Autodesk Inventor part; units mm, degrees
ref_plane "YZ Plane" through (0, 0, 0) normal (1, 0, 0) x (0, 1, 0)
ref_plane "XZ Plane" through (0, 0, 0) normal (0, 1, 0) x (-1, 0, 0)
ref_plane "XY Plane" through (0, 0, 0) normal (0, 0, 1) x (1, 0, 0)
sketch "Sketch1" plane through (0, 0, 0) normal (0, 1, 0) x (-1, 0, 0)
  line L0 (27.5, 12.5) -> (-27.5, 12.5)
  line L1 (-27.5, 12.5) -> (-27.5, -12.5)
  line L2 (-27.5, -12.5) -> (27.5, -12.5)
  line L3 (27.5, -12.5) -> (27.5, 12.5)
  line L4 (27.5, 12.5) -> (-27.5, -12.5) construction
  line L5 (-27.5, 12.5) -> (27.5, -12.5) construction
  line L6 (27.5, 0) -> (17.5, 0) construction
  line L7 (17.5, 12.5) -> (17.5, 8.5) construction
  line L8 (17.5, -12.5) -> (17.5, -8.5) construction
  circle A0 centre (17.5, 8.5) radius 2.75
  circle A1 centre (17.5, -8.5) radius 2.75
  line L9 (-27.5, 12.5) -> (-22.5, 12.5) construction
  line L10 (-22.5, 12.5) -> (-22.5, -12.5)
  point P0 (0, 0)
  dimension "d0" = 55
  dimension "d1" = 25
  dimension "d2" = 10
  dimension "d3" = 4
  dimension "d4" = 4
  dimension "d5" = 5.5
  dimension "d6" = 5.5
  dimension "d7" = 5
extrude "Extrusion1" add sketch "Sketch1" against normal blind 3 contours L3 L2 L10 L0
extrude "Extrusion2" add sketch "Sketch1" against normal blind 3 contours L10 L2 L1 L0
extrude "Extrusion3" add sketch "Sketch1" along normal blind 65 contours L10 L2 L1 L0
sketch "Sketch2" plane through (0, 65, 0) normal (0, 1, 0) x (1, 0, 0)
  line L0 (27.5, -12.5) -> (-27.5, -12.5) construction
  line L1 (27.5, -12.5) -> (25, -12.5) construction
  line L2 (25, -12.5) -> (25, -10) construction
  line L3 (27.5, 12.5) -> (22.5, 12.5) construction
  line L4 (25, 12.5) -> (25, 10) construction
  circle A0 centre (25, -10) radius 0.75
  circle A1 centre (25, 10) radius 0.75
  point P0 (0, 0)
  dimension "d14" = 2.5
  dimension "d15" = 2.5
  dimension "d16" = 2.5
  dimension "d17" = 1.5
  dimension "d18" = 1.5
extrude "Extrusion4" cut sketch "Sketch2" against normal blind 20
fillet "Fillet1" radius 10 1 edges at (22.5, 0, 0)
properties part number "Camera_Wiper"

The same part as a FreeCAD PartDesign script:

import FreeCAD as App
import Part
import Sketcher

V = App.Vector


def edges_at(feature, points):
    """Names of the edges that pass closest to the given points."""
    edges = feature.Shape.Edges
    near = lambda p: min(range(len(edges)), key=lambda i: edges[i].distToShape(Part.Vertex(*p))[0])
    return sorted({f"Edge{near(p) + 1}" for p in points})


def add_polygon(sketch, points):
    """Adds a closed chain of lines whose ends are joined by coincident constraints."""
    first, n = sketch.GeometryCount, len(points)
    for a, b in zip(points, points[1:] + points[:1]):
        sketch.addGeometry(Part.LineSegment(App.Vector(*a, 0), App.Vector(*b, 0)), False)
    for i in range(n):
        sketch.addConstraint(Sketcher.Constraint("Coincident", first + i, 2, first + (i + 1) % n, 1))

doc = App.newDocument("Part")
body = doc.addObject("PartDesign::Body", "Body")

sketch1 = body.newObject("Sketcher::SketchObject", "Sketch")
sketch1.AttachmentSupport = (doc.getObject("XZ_Plane"), [""])
sketch1.MapMode = "FlatFace"
add_polygon(sketch1, [(-27.5, -12.5), (-27.5, 12.5), (22.5, 12.5), (22.5, -12.5)])
sketch1.addGeometry(Part.Circle(V(-17.5, -8.5, 0), V(0, 0, 1), 2.75), False)
sketch1.addGeometry(Part.Circle(V(-17.5, 8.5, 0), V(0, 0, 1), 2.75), False)
sketch1.addConstraint([
    Sketcher.Constraint("Vertical", 0),
    Sketcher.Constraint("Horizontal", 1),
    Sketcher.Constraint("Vertical", 2),
    Sketcher.Constraint("Horizontal", 3),
    Sketcher.Constraint("Equal", 4, 5),
    Sketcher.Constraint("Symmetric", 4, 3, 5, 3, -1),
    Sketcher.Constraint("Diameter", 4, 5.5),
    Sketcher.Constraint("DistanceY", 0, 1, 0, 2, 25.0),
    Sketcher.Constraint("DistanceX", 0, 2, 5, 3, 10.0),
    Sketcher.Constraint("DistanceY", 5, 3, 0, 2, 4.0),
    Sketcher.Constraint("DistanceY", 2, 2, 4, 3, 4.0),
    Sketcher.Constraint("DistanceX", 1, 1, 1, 2, 50.0),
    Sketcher.Constraint("DistanceX", 4, 3, -1, 1, 17.5),
])
pad1 = body.newObject("PartDesign::Pad", "Pad")
pad1.Profile = sketch1
pad1.Length = 3

sketch2 = body.newObject("Sketcher::SketchObject", "Sketch001")
sketch2.AttachmentSupport = (doc.getObject("XZ_Plane"), [""])
sketch2.MapMode = "FlatFace"
add_polygon(sketch2, [(22.5, -12.5), (22.5, 12.5), (27.5, 12.5), (27.5, -12.5)])
sketch2.addConstraint([
    Sketcher.Constraint("Vertical", 0),
    Sketcher.Constraint("Horizontal", 1),
    Sketcher.Constraint("Vertical", 2),
    Sketcher.Constraint("Horizontal", 3),
    Sketcher.Constraint("DistanceX", 1, 1, 1, 2, 5.0),
    Sketcher.Constraint("DistanceY", 0, 1, 0, 2, 25.0),
    Sketcher.Constraint("DistanceX", -1, 1, 0, 2, 22.5),
    Sketcher.Constraint("DistanceY", -1, 1, 0, 2, 12.5),
])
pad2 = body.newObject("PartDesign::Pad", "Pad001")
pad2.Profile = sketch2
pad2.Length = 3

sketch3 = body.newObject("Sketcher::SketchObject", "Sketch002")
sketch3.AttachmentSupport = (doc.getObject("XZ_Plane"), [""])
sketch3.MapMode = "FlatFace"
add_polygon(sketch3, [(22.5, -12.5), (22.5, 12.5), (27.5, 12.5), (27.5, -12.5)])
sketch3.addConstraint([
    Sketcher.Constraint("Vertical", 0),
    Sketcher.Constraint("Horizontal", 1),
    Sketcher.Constraint("Vertical", 2),
    Sketcher.Constraint("Horizontal", 3),
    Sketcher.Constraint("DistanceX", 1, 1, 1, 2, 5.0),
    Sketcher.Constraint("DistanceY", 0, 1, 0, 2, 25.0),
    Sketcher.Constraint("DistanceX", -1, 1, 0, 2, 22.5),
    Sketcher.Constraint("DistanceY", -1, 1, 0, 2, 12.5),
])
pad3 = body.newObject("PartDesign::Pad", "Pad002")
pad3.Profile = sketch3
pad3.Length = 65
pad3.Reversed = True

sketch4 = body.newObject("Sketcher::SketchObject", "Sketch003")
sketch4.AttachmentSupport = (doc.getObject("XZ_Plane"), [""])
sketch4.MapMode = "FlatFace"
sketch4.AttachmentOffset = App.Placement(V(0, 0, -65), App.Rotation())
sketch4.addGeometry([
    Part.Circle(V(25, 10, 0), V(0, 0, 1), 0.75),
    Part.Circle(V(25, -10, 0), V(0, 0, 1), 0.75),
], False)
sketch4.addConstraint([
    Sketcher.Constraint("Equal", 0, 1),
    Sketcher.Constraint("Symmetric", 0, 3, 1, 3, -1),
    Sketcher.Constraint("Diameter", 0, 1.5),
    Sketcher.Constraint("DistanceX", -1, 1, 0, 3, 25.0),
    Sketcher.Constraint("DistanceY", -1, 1, 0, 3, 10.0),
])
pocket1 = body.newObject("PartDesign::Pocket", "Pocket")
pocket1.Profile = sketch4
pocket1.Length = 20
pocket1.Reversed = True
doc.recompute()

fillet = body.newObject("PartDesign::Fillet", "Fillet")
fillet.Base = (pocket1, edges_at(pocket1, [(22.5, 0, 0)]))
fillet.Radius = 10

doc.recompute()
